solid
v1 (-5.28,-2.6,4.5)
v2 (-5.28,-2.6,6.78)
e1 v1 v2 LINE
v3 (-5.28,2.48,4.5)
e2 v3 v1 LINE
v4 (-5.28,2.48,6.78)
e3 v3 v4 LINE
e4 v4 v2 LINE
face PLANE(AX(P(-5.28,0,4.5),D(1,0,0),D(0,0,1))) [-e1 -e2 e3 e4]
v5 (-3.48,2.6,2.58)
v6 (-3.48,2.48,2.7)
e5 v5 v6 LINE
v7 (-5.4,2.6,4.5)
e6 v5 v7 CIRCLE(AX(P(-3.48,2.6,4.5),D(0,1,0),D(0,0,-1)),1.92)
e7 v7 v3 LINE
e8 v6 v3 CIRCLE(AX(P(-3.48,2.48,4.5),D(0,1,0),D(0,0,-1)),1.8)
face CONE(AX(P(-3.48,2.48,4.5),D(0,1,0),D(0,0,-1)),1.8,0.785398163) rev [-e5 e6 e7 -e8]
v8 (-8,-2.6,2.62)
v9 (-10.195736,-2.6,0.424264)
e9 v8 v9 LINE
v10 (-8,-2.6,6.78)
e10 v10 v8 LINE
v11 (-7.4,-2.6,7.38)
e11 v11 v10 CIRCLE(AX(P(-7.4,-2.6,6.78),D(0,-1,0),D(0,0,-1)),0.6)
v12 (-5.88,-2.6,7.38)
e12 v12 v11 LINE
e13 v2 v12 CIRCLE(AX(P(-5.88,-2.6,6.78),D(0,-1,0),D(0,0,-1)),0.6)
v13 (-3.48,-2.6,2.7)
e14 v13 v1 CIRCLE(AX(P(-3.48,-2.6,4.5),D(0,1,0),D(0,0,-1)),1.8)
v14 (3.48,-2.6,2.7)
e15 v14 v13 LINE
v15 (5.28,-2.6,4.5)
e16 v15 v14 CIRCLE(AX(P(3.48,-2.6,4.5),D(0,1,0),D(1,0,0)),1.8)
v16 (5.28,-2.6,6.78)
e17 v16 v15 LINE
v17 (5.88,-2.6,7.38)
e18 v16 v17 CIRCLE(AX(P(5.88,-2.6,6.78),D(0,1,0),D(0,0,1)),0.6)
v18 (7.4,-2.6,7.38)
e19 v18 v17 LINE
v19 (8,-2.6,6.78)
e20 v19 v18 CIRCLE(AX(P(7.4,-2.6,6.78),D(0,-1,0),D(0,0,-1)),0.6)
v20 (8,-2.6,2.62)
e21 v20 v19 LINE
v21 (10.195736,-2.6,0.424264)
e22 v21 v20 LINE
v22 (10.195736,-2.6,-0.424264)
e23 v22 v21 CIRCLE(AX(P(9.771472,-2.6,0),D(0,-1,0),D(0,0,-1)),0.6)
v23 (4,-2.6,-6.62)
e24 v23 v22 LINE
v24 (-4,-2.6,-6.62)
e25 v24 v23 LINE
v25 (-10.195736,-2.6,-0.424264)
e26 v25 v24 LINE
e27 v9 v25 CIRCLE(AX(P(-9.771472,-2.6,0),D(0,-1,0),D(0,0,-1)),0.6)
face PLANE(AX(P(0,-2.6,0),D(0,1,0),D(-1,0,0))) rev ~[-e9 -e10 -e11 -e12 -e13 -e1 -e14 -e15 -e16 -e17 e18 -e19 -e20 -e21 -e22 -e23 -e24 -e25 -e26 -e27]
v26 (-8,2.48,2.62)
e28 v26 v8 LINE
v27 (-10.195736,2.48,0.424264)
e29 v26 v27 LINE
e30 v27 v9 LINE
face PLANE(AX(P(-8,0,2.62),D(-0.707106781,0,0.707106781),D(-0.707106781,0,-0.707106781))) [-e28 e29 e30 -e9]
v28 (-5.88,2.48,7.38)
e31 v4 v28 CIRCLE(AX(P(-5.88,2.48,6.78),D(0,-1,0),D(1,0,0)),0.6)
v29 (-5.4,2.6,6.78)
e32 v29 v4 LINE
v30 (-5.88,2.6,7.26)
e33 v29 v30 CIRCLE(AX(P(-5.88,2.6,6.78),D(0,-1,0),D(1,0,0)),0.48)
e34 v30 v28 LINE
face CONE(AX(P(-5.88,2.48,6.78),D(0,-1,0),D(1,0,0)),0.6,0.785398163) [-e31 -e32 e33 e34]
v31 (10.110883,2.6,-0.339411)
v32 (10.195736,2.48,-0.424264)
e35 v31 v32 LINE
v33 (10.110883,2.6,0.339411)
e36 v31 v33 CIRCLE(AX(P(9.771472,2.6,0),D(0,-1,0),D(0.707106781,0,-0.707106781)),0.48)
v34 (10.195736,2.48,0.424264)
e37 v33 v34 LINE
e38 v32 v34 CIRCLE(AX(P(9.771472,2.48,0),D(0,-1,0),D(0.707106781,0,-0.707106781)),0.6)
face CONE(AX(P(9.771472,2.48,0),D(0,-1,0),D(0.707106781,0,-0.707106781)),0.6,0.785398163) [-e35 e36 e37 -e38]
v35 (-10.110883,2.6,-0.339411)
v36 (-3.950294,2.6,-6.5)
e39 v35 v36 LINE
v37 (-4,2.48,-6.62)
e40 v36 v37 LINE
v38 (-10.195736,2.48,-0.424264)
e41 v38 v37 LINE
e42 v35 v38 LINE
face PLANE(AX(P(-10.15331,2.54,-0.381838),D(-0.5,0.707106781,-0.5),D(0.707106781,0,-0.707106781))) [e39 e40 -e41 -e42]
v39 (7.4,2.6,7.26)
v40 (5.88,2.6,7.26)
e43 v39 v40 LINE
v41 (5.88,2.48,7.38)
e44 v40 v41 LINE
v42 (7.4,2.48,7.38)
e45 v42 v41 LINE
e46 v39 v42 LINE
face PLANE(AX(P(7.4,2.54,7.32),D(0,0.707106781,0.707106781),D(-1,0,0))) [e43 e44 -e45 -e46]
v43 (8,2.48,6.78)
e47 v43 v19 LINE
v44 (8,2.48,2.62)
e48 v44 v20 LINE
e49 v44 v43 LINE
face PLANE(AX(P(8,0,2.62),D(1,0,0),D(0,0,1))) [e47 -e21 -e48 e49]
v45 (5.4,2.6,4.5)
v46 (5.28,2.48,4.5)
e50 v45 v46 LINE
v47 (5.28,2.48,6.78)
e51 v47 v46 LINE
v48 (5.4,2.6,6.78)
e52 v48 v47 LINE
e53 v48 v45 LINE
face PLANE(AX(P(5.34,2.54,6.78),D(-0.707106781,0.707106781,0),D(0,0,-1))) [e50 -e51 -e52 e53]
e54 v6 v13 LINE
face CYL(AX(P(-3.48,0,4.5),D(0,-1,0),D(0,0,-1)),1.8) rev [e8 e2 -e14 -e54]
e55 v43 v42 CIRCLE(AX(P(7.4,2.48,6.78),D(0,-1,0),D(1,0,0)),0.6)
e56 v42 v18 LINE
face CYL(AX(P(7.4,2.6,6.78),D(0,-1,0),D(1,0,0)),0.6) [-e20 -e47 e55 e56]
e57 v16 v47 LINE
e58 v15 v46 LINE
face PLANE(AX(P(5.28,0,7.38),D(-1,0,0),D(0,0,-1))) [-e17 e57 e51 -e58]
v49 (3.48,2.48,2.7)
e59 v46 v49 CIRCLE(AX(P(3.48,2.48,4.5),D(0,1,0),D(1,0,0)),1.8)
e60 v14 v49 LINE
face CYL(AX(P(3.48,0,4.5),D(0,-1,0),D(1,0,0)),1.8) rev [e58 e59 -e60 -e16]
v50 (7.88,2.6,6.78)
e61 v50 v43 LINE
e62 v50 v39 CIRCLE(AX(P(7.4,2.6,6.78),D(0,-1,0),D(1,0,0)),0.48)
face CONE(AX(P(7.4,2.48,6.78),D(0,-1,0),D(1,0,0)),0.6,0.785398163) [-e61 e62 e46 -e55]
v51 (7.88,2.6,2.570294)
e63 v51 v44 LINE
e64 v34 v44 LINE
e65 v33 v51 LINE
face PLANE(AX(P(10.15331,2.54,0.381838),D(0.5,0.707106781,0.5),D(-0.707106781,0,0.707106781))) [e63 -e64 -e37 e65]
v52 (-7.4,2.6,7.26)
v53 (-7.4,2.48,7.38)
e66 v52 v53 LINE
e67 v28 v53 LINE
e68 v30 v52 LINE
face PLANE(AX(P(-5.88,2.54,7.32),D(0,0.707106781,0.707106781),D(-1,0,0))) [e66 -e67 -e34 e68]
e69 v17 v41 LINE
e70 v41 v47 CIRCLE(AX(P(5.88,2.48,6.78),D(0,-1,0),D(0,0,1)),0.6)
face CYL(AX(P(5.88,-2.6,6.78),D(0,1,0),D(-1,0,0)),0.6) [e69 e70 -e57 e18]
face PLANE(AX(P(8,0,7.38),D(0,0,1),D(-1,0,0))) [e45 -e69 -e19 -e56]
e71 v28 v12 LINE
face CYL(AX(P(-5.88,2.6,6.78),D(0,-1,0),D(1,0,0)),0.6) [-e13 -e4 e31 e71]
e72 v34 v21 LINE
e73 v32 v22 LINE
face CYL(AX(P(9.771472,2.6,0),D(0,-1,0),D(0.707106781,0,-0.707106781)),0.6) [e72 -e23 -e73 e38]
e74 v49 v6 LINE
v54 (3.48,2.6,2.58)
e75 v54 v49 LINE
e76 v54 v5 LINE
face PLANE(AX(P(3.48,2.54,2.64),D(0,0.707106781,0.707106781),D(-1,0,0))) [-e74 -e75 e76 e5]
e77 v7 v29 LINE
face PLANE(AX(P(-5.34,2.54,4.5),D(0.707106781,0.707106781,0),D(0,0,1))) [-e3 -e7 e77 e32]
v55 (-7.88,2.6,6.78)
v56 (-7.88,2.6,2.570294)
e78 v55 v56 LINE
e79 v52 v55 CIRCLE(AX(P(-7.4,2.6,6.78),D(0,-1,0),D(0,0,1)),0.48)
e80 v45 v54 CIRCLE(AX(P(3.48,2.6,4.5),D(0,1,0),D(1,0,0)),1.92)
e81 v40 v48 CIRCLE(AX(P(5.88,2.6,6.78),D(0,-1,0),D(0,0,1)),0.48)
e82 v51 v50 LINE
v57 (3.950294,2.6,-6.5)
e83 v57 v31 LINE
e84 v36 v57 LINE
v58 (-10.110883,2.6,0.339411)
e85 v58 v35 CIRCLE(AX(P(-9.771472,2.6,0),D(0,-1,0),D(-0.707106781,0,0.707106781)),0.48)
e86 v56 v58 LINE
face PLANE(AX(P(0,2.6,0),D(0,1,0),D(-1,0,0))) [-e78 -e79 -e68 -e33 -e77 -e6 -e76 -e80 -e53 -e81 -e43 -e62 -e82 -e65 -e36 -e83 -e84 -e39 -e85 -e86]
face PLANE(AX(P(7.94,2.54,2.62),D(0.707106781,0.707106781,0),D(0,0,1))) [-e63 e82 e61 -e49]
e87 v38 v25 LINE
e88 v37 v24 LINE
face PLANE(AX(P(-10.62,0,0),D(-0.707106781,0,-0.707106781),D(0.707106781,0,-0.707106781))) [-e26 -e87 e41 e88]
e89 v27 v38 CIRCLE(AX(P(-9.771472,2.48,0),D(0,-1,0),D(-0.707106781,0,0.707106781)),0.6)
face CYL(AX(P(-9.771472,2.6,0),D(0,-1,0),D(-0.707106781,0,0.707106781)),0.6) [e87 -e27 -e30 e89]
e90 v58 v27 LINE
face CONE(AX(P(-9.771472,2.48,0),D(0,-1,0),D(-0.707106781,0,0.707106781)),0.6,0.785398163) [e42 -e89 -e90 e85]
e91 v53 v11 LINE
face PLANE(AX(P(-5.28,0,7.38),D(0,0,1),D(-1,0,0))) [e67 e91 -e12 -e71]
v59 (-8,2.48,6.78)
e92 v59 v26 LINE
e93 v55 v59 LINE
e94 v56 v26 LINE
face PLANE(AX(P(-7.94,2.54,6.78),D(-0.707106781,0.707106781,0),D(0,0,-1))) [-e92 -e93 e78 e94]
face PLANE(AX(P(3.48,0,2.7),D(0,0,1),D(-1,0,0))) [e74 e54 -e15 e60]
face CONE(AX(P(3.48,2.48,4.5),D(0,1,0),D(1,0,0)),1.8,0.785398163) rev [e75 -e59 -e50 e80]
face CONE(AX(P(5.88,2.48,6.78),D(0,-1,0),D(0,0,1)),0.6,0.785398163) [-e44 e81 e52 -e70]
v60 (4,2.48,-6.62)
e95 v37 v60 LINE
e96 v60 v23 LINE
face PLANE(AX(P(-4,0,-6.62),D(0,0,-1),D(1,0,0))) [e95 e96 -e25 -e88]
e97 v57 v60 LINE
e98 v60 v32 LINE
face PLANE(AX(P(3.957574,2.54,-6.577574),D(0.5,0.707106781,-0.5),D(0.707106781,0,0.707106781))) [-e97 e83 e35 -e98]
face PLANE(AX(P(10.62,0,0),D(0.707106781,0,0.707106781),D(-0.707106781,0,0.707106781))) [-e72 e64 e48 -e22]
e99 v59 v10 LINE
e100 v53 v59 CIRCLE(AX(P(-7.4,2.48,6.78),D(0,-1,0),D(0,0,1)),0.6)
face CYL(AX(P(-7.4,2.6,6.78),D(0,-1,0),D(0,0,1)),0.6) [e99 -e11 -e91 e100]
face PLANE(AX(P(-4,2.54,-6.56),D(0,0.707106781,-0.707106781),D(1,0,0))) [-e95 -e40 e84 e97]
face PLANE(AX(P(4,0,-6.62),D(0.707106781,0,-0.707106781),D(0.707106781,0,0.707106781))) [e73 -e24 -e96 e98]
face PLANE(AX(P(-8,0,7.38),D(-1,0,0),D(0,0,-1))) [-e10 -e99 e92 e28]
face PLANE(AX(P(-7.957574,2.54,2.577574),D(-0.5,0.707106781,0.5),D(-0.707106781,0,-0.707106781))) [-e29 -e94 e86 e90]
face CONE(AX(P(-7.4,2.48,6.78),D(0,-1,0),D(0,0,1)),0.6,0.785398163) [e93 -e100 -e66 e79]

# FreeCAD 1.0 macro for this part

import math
import FreeCAD as App
import Part
import Sketcher

V = App.Vector


def edges_at(feature, points):
    """Names of the edges that pass closest to the given points."""
    edges = feature.Shape.Edges
    near = lambda p: min(range(len(edges)), key=lambda i: edges[i].distToShape(Part.Vertex(*p))[0])
    return sorted({f"Edge{near(p) + 1}" for p in points})

doc = App.newDocument("Part")
body = doc.addObject("PartDesign::Body", "Body")

# Sketch on XZ plane
sketch1 = body.newObject("Sketcher::SketchObject", "Sketch")
sketch1.AttachmentSupport = (doc.getObject("XZ_Plane"), [""])
sketch1.MapMode = "FlatFace"
sketch1.addGeometry([
    Part.LineSegment(V(-3.5, 2.7, 0), V(3.5, 2.7, 0)),  # 0
    Part.ArcOfCircle(Part.Circle(V(3.5, 4.5, 0), V(0, 0, 1), 1.8), math.radians(-90), math.radians(0)),  # 1
    Part.LineSegment(V(5.3, 4.5, 0), V(5.3, 7.4, 0)),  # 2
    Part.LineSegment(V(5.3, 7.4, 0), V(8, 7.4, 0)),  # 3
    Part.LineSegment(V(8, 7.4, 0), V(8, 2.6, 0)),  # 4
    Part.LineSegment(V(8, 2.6, 0), V(10.6, 0, 0)),  # 5
    Part.LineSegment(V(10.6, 0, 0), V(4, -6.6, 0)),  # 6
    Part.LineSegment(V(4, -6.6, 0), V(-4, -6.6, 0)),  # 7
    Part.LineSegment(V(-4, -6.6, 0), V(-10.6, 0, 0)),  # 8
    Part.LineSegment(V(-10.6, 0, 0), V(-8, 2.6, 0)),  # 9
    Part.LineSegment(V(-8, 2.6, 0), V(-8, 7.4, 0)),  # 10
    Part.LineSegment(V(-8, 7.4, 0), V(-5.3, 7.4, 0)),  # 11
    Part.LineSegment(V(-5.3, 7.4, 0), V(-5.3, 4.5, 0)),  # 12
    Part.ArcOfCircle(Part.Circle(V(-3.5, 4.5, 0), V(0, 0, 1), 1.8), math.radians(180), math.radians(270)),  # 13
], False)
sketch1.addConstraint([
    Sketcher.Constraint("Tangent", 0, 2, 1, 1),
    Sketcher.Constraint("Tangent", 1, 2, 2, 1),
    Sketcher.Constraint("Coincident", 2, 2, 3, 1),
    Sketcher.Constraint("Coincident", 3, 2, 4, 1),
    Sketcher.Constraint("Coincident", 4, 2, 5, 1),
    Sketcher.Constraint("Coincident", 5, 2, 6, 1),
    Sketcher.Constraint("Coincident", 6, 2, 7, 1),
    Sketcher.Constraint("Coincident", 7, 2, 8, 1),
    Sketcher.Constraint("Coincident", 8, 2, 9, 1),
    Sketcher.Constraint("Coincident", 9, 2, 10, 1),
    Sketcher.Constraint("Coincident", 10, 2, 11, 1),
    Sketcher.Constraint("Coincident", 11, 2, 12, 1),
    Sketcher.Constraint("Tangent", 12, 2, 13, 1),
    Sketcher.Constraint("Tangent", 13, 2, 0, 1),
    Sketcher.Constraint("Horizontal", 0),
    Sketcher.Constraint("Vertical", 2),
    Sketcher.Constraint("Horizontal", 3),
    Sketcher.Constraint("Vertical", 4),
    Sketcher.Constraint("Horizontal", 7),
    Sketcher.Constraint("Vertical", 10),
    Sketcher.Constraint("Horizontal", 11),
    Sketcher.Constraint("Vertical", 12),
    Sketcher.Constraint("Equal", 1, 13),
    Sketcher.Constraint("Symmetric", 5, 2, 8, 2, -1, 1),
    Sketcher.Constraint("Symmetric", 4, 2, 9, 2, -2),
    Sketcher.Constraint("Symmetric", 2, 2, 11, 2, -2),
    Sketcher.Constraint("PointOnObject", 5, 2, -1),
    Sketcher.Constraint("Perpendicular", 5, 6),
    Sketcher.Constraint("Perpendicular", 6, 8),
    Sketcher.Constraint("Perpendicular", 8, 9),
    Sketcher.Constraint("Radius", 1, 1.8),
    Sketcher.Constraint("DistanceX", 7, 2, 7, 1, 8.0),
    Sketcher.Constraint("DistanceX", -1, 1, 3, 2, 8.0),
    Sketcher.Constraint("DistanceX", 3, 1, 3, 2, 2.72),
    Sketcher.Constraint("DistanceY", 4, 2, 4, 1, 4.76),
    Sketcher.Constraint("DistanceY", 0, 2, 2, 2, 4.68),
    Sketcher.Constraint("DistanceY", 6, 2, 0, 2, 9.32),
])
pad1 = body.newObject("PartDesign::Pad", "Pad")
pad1.Profile = sketch1
pad1.Length = 5.2
pad1.Midplane = True
doc.recompute()

fillet = body.newObject("PartDesign::Fillet", "Fillet")
fillet.Base = (pad1, edges_at(pad1, [
    (-8, 0, 7.38),
    (-5.28, 0, 7.38),
    (5.28, 0, 7.38),
    (8, 0, 7.38),
    (10.62, 0, 0),
    (-10.62, 0, 0),
]))
fillet.Radius = 0.6
doc.recompute()

chamfer = body.newObject("PartDesign::Chamfer", "Chamfer")
chamfer.Base = (fillet, edges_at(fillet, [
    (-8, 2.6, 4.7),
    (-7.824, 2.6, 7.204),
    (-6.64, 2.6, 7.38),
    (-5.456, 2.6, 7.204),
    (-5.28, 2.6, 5.64),
    (-4.753, 2.6, 3.227),
    (0, 2.6, 2.7),
    (4.753, 2.6, 3.227),
    (5.28, 2.6, 5.64),
    (5.456, 2.6, 7.204),
    (6.64, 2.6, 7.38),
    (7.824, 2.6, 7.204),
    (8, 2.6, 4.7),
    (-9.098, 2.6, 1.522),
    (-10.371, 2.6, 0),
    (-7.098, 2.6, -3.522),
    (0, 2.6, -6.62),
    (7.098, 2.6, -3.522),
    (10.371, 2.6, 0),
    (9.098, 2.6, 1.522),
]))
chamfer.Size = 0.12

doc.recompute()
